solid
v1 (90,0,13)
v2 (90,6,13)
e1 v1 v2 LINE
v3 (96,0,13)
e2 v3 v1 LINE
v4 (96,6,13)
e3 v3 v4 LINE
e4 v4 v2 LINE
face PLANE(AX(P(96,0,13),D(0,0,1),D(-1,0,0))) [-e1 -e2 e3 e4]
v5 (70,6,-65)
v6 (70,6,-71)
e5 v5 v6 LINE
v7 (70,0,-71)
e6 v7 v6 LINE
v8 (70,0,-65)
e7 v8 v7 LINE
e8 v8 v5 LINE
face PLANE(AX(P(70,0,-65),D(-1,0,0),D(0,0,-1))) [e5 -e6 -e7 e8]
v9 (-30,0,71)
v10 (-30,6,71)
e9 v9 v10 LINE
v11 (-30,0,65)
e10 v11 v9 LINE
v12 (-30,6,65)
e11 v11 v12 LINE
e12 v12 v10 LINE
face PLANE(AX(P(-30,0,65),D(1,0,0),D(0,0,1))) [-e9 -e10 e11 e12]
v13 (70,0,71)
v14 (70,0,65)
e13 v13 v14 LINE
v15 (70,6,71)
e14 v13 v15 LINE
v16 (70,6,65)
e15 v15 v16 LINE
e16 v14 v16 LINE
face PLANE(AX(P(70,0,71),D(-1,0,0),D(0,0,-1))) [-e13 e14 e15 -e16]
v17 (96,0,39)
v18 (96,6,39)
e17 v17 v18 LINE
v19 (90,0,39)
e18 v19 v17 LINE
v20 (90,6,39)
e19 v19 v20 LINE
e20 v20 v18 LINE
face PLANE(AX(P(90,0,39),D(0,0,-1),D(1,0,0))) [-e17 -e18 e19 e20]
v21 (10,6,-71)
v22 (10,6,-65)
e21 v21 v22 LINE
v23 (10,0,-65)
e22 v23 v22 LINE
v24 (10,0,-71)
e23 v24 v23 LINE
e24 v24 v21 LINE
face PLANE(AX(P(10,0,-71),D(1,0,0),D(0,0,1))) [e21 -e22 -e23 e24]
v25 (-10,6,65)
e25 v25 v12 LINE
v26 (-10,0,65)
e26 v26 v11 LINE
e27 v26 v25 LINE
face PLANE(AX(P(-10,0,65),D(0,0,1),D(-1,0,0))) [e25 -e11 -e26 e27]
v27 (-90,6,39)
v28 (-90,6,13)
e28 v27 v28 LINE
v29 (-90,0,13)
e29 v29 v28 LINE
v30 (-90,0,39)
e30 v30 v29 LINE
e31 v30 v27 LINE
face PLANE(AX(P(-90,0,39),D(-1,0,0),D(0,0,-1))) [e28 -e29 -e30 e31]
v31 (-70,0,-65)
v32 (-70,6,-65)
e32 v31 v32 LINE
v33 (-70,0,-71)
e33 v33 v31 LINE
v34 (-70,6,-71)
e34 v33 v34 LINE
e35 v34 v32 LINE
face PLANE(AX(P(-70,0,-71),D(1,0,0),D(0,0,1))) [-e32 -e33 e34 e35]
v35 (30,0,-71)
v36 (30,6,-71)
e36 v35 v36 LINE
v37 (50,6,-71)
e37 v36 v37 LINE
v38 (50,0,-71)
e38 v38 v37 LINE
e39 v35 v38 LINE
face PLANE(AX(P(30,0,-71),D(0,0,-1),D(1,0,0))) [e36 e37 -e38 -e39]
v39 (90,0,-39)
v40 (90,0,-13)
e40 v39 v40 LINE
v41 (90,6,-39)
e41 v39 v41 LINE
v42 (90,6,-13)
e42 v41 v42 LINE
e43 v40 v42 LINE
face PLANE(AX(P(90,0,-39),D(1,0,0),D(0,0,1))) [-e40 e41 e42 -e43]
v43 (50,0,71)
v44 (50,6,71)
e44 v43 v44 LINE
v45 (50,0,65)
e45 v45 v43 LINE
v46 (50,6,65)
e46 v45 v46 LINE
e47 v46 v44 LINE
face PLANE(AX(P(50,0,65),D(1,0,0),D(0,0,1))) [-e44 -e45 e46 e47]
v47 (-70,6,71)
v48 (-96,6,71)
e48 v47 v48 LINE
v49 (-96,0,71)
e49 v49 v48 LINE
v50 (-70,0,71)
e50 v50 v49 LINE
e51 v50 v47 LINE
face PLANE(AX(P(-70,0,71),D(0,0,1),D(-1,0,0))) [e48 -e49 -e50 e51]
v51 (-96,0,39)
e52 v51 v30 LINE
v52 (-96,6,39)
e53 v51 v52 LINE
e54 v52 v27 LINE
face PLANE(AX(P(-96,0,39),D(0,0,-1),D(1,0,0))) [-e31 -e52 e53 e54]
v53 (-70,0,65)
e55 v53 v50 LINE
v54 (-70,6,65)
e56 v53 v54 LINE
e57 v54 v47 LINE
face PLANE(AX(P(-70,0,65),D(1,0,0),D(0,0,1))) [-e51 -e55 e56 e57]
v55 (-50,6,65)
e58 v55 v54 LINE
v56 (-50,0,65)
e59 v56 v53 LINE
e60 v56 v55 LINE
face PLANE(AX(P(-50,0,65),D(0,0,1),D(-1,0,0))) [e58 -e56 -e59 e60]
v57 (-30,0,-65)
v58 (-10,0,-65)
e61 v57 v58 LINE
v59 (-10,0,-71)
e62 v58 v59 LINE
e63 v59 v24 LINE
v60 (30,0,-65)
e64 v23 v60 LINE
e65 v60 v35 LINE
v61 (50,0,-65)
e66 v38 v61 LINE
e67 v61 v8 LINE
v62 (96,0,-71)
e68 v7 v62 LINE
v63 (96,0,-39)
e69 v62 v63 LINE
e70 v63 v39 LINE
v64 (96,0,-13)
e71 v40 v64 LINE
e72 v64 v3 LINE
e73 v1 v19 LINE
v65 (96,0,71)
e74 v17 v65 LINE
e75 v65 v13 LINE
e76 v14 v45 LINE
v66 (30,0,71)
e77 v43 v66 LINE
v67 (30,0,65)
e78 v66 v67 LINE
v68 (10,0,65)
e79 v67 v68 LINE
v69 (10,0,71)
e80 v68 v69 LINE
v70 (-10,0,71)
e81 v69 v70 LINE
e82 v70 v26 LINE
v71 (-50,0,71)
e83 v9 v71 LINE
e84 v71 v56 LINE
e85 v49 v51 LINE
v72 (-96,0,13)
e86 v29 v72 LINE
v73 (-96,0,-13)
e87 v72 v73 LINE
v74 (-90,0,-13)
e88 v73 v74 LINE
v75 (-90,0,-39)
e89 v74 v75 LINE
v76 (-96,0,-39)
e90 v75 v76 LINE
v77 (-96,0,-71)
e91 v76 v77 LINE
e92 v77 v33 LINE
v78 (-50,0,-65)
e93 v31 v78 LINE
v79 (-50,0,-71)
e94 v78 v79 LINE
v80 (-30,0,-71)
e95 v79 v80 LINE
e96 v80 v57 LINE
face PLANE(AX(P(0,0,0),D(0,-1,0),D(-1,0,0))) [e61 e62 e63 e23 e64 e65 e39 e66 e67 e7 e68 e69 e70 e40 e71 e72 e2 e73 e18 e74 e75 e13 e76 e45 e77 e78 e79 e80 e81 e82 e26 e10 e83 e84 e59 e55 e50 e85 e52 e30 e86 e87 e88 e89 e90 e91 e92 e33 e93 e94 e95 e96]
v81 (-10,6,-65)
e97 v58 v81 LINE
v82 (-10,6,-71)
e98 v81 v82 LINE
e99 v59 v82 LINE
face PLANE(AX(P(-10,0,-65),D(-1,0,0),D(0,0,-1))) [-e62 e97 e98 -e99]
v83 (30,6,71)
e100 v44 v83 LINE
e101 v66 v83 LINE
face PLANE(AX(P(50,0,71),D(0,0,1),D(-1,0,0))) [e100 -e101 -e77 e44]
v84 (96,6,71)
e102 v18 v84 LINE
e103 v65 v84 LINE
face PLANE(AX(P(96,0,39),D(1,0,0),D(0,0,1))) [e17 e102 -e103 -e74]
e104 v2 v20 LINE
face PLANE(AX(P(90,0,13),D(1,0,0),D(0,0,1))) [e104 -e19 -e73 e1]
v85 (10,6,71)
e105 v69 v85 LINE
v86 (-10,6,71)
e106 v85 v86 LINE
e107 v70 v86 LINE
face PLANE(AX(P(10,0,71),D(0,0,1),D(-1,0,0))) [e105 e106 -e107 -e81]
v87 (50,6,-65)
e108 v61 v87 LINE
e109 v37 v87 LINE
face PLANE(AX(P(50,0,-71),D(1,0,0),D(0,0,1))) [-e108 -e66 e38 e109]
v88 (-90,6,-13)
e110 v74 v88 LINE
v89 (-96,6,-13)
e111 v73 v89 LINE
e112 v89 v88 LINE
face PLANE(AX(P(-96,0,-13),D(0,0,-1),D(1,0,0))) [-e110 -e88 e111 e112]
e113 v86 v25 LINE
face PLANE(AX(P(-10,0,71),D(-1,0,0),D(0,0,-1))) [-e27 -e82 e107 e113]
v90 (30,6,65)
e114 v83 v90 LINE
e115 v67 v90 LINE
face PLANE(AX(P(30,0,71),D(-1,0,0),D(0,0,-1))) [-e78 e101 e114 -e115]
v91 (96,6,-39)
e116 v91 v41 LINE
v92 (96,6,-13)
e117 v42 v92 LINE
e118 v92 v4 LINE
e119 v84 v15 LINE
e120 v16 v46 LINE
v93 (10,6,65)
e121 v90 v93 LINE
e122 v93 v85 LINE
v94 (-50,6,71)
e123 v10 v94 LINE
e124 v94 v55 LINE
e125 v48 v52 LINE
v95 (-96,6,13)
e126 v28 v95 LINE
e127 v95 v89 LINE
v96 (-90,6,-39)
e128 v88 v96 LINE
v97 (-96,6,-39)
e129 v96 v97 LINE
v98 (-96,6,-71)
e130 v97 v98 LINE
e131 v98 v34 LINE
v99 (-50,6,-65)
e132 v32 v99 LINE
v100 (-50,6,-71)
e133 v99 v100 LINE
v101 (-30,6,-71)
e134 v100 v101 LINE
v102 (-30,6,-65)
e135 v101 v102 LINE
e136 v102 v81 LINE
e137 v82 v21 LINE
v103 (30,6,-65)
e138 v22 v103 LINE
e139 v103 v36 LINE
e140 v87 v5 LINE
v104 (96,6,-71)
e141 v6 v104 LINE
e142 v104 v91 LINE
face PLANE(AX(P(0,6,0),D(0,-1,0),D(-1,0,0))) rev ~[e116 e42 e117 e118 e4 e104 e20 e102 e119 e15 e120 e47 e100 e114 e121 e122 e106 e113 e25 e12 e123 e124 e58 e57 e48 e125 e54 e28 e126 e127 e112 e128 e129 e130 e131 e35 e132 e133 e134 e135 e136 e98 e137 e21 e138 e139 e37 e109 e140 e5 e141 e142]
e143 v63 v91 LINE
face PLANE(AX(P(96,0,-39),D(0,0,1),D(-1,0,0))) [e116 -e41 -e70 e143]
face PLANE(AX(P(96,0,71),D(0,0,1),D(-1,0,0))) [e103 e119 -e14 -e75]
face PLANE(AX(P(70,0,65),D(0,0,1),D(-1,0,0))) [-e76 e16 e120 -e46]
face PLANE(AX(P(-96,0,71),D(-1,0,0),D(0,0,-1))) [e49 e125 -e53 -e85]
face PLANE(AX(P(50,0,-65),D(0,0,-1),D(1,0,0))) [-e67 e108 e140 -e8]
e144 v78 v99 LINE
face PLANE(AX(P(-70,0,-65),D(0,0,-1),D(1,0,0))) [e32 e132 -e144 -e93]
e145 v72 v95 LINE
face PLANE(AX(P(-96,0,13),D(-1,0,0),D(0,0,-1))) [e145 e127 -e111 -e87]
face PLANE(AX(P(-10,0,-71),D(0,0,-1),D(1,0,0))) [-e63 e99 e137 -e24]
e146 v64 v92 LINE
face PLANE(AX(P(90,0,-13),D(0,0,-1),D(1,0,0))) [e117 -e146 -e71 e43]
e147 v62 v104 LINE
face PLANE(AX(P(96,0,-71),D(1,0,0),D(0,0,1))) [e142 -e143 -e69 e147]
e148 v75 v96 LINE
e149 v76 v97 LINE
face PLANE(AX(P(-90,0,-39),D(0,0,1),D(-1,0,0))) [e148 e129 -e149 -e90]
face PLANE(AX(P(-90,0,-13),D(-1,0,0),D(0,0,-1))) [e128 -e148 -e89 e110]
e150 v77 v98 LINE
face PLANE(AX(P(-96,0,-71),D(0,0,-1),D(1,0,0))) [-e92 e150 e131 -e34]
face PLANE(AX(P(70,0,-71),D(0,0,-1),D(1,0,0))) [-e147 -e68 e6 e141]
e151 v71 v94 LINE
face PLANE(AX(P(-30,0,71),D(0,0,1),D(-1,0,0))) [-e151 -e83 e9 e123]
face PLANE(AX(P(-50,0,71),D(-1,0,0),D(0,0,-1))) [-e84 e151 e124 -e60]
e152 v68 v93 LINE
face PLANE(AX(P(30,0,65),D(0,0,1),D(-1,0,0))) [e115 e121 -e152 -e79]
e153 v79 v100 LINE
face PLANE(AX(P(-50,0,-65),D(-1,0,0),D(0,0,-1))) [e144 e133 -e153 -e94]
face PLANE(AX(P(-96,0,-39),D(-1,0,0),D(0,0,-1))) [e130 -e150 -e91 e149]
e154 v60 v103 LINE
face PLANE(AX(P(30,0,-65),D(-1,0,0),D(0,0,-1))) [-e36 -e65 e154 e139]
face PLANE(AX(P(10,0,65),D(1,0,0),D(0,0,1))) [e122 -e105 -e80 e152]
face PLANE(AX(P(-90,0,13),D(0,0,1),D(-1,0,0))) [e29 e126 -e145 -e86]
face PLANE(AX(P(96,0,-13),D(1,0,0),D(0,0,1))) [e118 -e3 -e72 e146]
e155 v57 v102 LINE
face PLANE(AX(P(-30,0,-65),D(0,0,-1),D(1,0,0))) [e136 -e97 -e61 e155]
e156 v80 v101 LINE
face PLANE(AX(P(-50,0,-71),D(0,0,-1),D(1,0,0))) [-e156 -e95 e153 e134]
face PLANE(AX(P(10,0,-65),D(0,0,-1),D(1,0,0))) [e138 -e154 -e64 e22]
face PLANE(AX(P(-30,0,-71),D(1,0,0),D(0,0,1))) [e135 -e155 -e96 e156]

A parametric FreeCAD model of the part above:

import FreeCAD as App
import Part
import Sketcher
from FreeCAD import Vector
Q = App.Units.Quantity

doc = App.newDocument("Part")
params = doc.addObject("Spreadsheet::Sheet", "Params")
for row, (alias, value) in enumerate([
    ("sketch1_width", "26 mm"),
    ("sketch1_width2", "6 mm"),
    ("sketch1_width3", "20 mm"),
    ("sketch1_height", "32 mm"),
    ("pad1_length", "6 mm"),
], start=1):
    params.set(f"A{row}", alias)
    params.set(f"B{row}", "=" + value)
    params.setAlias(f"B{row}", alias)

body = doc.addObject("PartDesign::Body", "Body")

# Sketch on XZ plane
sketch1 = doc.addObject("Sketcher::SketchObject", "Sketch")
body.addObject(sketch1)
sketch1.AttachmentSupport = (doc.XZ_Plane, [""])
sketch1.MapMode = "FlatFace"
sketch1.addGeometry([
    Part.LineSegment(Vector(-70, -65, 0), Vector(-70, -71, 0)),  # 0
    Part.LineSegment(Vector(-70, -71, 0), Vector(-96, -71, 0)),  # 1
    Part.LineSegment(Vector(-96, -71, 0), Vector(-96, -39, 0)),  # 2
    Part.LineSegment(Vector(-96, -39, 0), Vector(-90, -39, 0)),  # 3
    Part.LineSegment(Vector(-90, -39, 0), Vector(-90, -13, 0)),  # 4
    Part.LineSegment(Vector(-90, -13, 0), Vector(-96, -13, 0)),  # 5
    Part.LineSegment(Vector(-96, -13, 0), Vector(-96, 13, 0)),  # 6
    Part.LineSegment(Vector(-96, 13, 0), Vector(-90, 13, 0)),  # 7
    Part.LineSegment(Vector(-90, 13, 0), Vector(-90, 39, 0)),  # 8
    Part.LineSegment(Vector(-90, 39, 0), Vector(-96, 39, 0)),  # 9
    Part.LineSegment(Vector(-96, 39, 0), Vector(-96, 71, 0)),  # 10
    Part.LineSegment(Vector(-96, 71, 0), Vector(-70, 71, 0)),  # 11
    Part.LineSegment(Vector(-70, 71, 0), Vector(-70, 65, 0)),  # 12
    Part.LineSegment(Vector(-70, 65, 0), Vector(-50, 65, 0)),  # 13
    Part.LineSegment(Vector(-50, 65, 0), Vector(-50, 71, 0)),  # 14
    Part.LineSegment(Vector(-50, 71, 0), Vector(-30, 71, 0)),  # 15
    Part.LineSegment(Vector(-30, 71, 0), Vector(-30, 65, 0)),  # 16
    Part.LineSegment(Vector(-30, 65, 0), Vector(-10, 65, 0)),  # 17
    Part.LineSegment(Vector(-10, 65, 0), Vector(-10, 71, 0)),  # 18
    Part.LineSegment(Vector(-10, 71, 0), Vector(10, 71, 0)),  # 19
    Part.LineSegment(Vector(10, 71, 0), Vector(10, 65, 0)),  # 20
    Part.LineSegment(Vector(10, 65, 0), Vector(30, 65, 0)),  # 21
    Part.LineSegment(Vector(30, 65, 0), Vector(30, 71, 0)),  # 22
    Part.LineSegment(Vector(30, 71, 0), Vector(50, 71, 0)),  # 23
    Part.LineSegment(Vector(50, 71, 0), Vector(50, 65, 0)),  # 24
    Part.LineSegment(Vector(50, 65, 0), Vector(70, 65, 0)),  # 25
    Part.LineSegment(Vector(70, 65, 0), Vector(70, 71, 0)),  # 26
    Part.LineSegment(Vector(70, 71, 0), Vector(96, 71, 0)),  # 27
    Part.LineSegment(Vector(96, 71, 0), Vector(96, 39, 0)),  # 28
    Part.LineSegment(Vector(96, 39, 0), Vector(90, 39, 0)),  # 29
    Part.LineSegment(Vector(90, 39, 0), Vector(90, 13, 0)),  # 30
    Part.LineSegment(Vector(90, 13, 0), Vector(96, 13, 0)),  # 31
    Part.LineSegment(Vector(96, 13, 0), Vector(96, -13, 0)),  # 32
    Part.LineSegment(Vector(96, -13, 0), Vector(90, -13, 0)),  # 33
    Part.LineSegment(Vector(90, -13, 0), Vector(90, -39, 0)),  # 34
    Part.LineSegment(Vector(90, -39, 0), Vector(96, -39, 0)),  # 35
    Part.LineSegment(Vector(96, -39, 0), Vector(96, -71, 0)),  # 36
    Part.LineSegment(Vector(96, -71, 0), Vector(70, -71, 0)),  # 37
    Part.LineSegment(Vector(70, -71, 0), Vector(70, -65, 0)),  # 38
    Part.LineSegment(Vector(70, -65, 0), Vector(50, -65, 0)),  # 39
    Part.LineSegment(Vector(50, -65, 0), Vector(50, -71, 0)),  # 40
    Part.LineSegment(Vector(50, -71, 0), Vector(30, -71, 0)),  # 41
    Part.LineSegment(Vector(30, -71, 0), Vector(30, -65, 0)),  # 42
    Part.LineSegment(Vector(30, -65, 0), Vector(10, -65, 0)),  # 43
    Part.LineSegment(Vector(10, -65, 0), Vector(10, -71, 0)),  # 44
    Part.LineSegment(Vector(10, -71, 0), Vector(-10, -71, 0)),  # 45
    Part.LineSegment(Vector(-10, -71, 0), Vector(-10, -65, 0)),  # 46
    Part.LineSegment(Vector(-10, -65, 0), Vector(-30, -65, 0)),  # 47
    Part.LineSegment(Vector(-30, -65, 0), Vector(-30, -71, 0)),  # 48
    Part.LineSegment(Vector(-30, -71, 0), Vector(-50, -71, 0)),  # 49
    Part.LineSegment(Vector(-50, -71, 0), Vector(-50, -65, 0)),  # 50
    Part.LineSegment(Vector(-50, -65, 0), Vector(-70, -65, 0)),  # 51
], False)
sketch1.addConstraint([
    Sketcher.Constraint("Coincident", 0, 2, 1, 1),
    Sketcher.Constraint("Coincident", 1, 2, 2, 1),
    Sketcher.Constraint("Coincident", 2, 2, 3, 1),
    Sketcher.Constraint("Coincident", 3, 2, 4, 1),
    Sketcher.Constraint("Coincident", 4, 2, 5, 1),
    Sketcher.Constraint("Coincident", 5, 2, 6, 1),
    Sketcher.Constraint("Coincident", 6, 2, 7, 1),
    Sketcher.Constraint("Coincident", 7, 2, 8, 1),
    Sketcher.Constraint("Coincident", 8, 2, 9, 1),
    Sketcher.Constraint("Coincident", 9, 2, 10, 1),
    Sketcher.Constraint("Coincident", 10, 2, 11, 1),
    Sketcher.Constraint("Coincident", 11, 2, 12, 1),
    Sketcher.Constraint("Coincident", 12, 2, 13, 1),
    Sketcher.Constraint("Coincident", 13, 2, 14, 1),
    Sketcher.Constraint("Coincident", 14, 2, 15, 1),
    Sketcher.Constraint("Coincident", 15, 2, 16, 1),
    Sketcher.Constraint("Coincident", 16, 2, 17, 1),
    Sketcher.Constraint("Coincident", 17, 2, 18, 1),
    Sketcher.Constraint("Coincident", 18, 2, 19, 1),
    Sketcher.Constraint("Coincident", 19, 2, 20, 1),
    Sketcher.Constraint("Coincident", 20, 2, 21, 1),
    Sketcher.Constraint("Coincident", 21, 2, 22, 1),
    Sketcher.Constraint("Coincident", 22, 2, 23, 1),
    Sketcher.Constraint("Coincident", 23, 2, 24, 1),
    Sketcher.Constraint("Coincident", 24, 2, 25, 1),
    Sketcher.Constraint("Coincident", 25, 2, 26, 1),
    Sketcher.Constraint("Coincident", 26, 2, 27, 1),
    Sketcher.Constraint("Coincident", 27, 2, 28, 1),
    Sketcher.Constraint("Coincident", 28, 2, 29, 1),
    Sketcher.Constraint("Coincident", 29, 2, 30, 1),
    Sketcher.Constraint("Coincident", 30, 2, 31, 1),
    Sketcher.Constraint("Coincident", 31, 2, 32, 1),
    Sketcher.Constraint("Coincident", 32, 2, 33, 1),
    Sketcher.Constraint("Coincident", 33, 2, 34, 1),
    Sketcher.Constraint("Coincident", 34, 2, 35, 1),
    Sketcher.Constraint("Coincident", 35, 2, 36, 1),
    Sketcher.Constraint("Coincident", 36, 2, 37, 1),
    Sketcher.Constraint("Coincident", 37, 2, 38, 1),
    Sketcher.Constraint("Coincident", 38, 2, 39, 1),
    Sketcher.Constraint("Coincident", 39, 2, 40, 1),
    Sketcher.Constraint("Coincident", 40, 2, 41, 1),
    Sketcher.Constraint("Coincident", 41, 2, 42, 1),
    Sketcher.Constraint("Coincident", 42, 2, 43, 1),
    Sketcher.Constraint("Coincident", 43, 2, 44, 1),
    Sketcher.Constraint("Coincident", 44, 2, 45, 1),
    Sketcher.Constraint("Coincident", 45, 2, 46, 1),
    Sketcher.Constraint("Coincident", 46, 2, 47, 1),
    Sketcher.Constraint("Coincident", 47, 2, 48, 1),
    Sketcher.Constraint("Coincident", 48, 2, 49, 1),
    Sketcher.Constraint("Coincident", 49, 2, 50, 1),
    Sketcher.Constraint("Coincident", 50, 2, 51, 1),
    Sketcher.Constraint("Coincident", 51, 2, 0, 1),
    Sketcher.Constraint("Vertical", 0),
    Sketcher.Constraint("Horizontal", 1),
    Sketcher.Constraint("Vertical", 2),
    Sketcher.Constraint("Horizontal", 3),
    Sketcher.Constraint("Vertical", 4),
    Sketcher.Constraint("Horizontal", 5),
    Sketcher.Constraint("Vertical", 6),
    Sketcher.Constraint("Horizontal", 7),
    Sketcher.Constraint("Vertical", 8),
    Sketcher.Constraint("Horizontal", 9),
    Sketcher.Constraint("Vertical", 10),
    Sketcher.Constraint("Horizontal", 11),
    Sketcher.Constraint("Vertical", 12),
    Sketcher.Constraint("Horizontal", 13),
    Sketcher.Constraint("Vertical", 14),
    Sketcher.Constraint("Horizontal", 15),
    Sketcher.Constraint("Vertical", 16),
    Sketcher.Constraint("Horizontal", 17),
    Sketcher.Constraint("Vertical", 18),
    Sketcher.Constraint("Horizontal", 19),
    Sketcher.Constraint("Vertical", 20),
    Sketcher.Constraint("Horizontal", 21),
    Sketcher.Constraint("Vertical", 22),
    Sketcher.Constraint("Horizontal", 23),
    Sketcher.Constraint("Vertical", 24),
    Sketcher.Constraint("Horizontal", 25),
    Sketcher.Constraint("Vertical", 26),
    Sketcher.Constraint("Horizontal", 27),
    Sketcher.Constraint("Vertical", 28),
    Sketcher.Constraint("Horizontal", 29),
    Sketcher.Constraint("Vertical", 30),
    Sketcher.Constraint("Horizontal", 31),
    Sketcher.Constraint("Vertical", 32),
    Sketcher.Constraint("Horizontal", 33),
    Sketcher.Constraint("Vertical", 34),
    Sketcher.Constraint("Horizontal", 35),
    Sketcher.Constraint("Vertical", 36),
    Sketcher.Constraint("Horizontal", 37),
    Sketcher.Constraint("Vertical", 38),
    Sketcher.Constraint("Horizontal", 39),
    Sketcher.Constraint("Vertical", 40),
    Sketcher.Constraint("Horizontal", 41),
    Sketcher.Constraint("Vertical", 42),
    Sketcher.Constraint("Horizontal", 43),
    Sketcher.Constraint("Vertical", 44),
    Sketcher.Constraint("Horizontal", 45),
    Sketcher.Constraint("Vertical", 46),
    Sketcher.Constraint("Horizontal", 47),
    Sketcher.Constraint("Vertical", 48),
    Sketcher.Constraint("Horizontal", 49),
    Sketcher.Constraint("Vertical", 50),
    Sketcher.Constraint("Horizontal", 51),
    Sketcher.Constraint("Symmetric", 0, 2, 26, 2, -1, 1),
    Sketcher.Constraint("Symmetric", 2, 2, 28, 2, -1, 1),
    Sketcher.Constraint("Symmetric", 4, 2, 30, 2, -1, 1),
    Sketcher.Constraint("Symmetric", 6, 2, 32, 2, -1, 1),
    Sketcher.Constraint("Symmetric", 8, 2, 34, 2, -1, 1),
    Sketcher.Constraint("Symmetric", 10, 2, 36, 2, -1, 1),
    Sketcher.Constraint("Symmetric", 12, 2, 38, 2, -1, 1),
    Sketcher.Constraint("Symmetric", 14, 2, 40, 2, -1, 1),
    Sketcher.Constraint("Symmetric", 16, 2, 42, 2, -1, 1),
    Sketcher.Constraint("Symmetric", 18, 2, 44, 2, -1, 1),
    Sketcher.Constraint("Symmetric", 20, 2, 46, 2, -1, 1),
    Sketcher.Constraint("Symmetric", 22, 2, 48, 2, -1, 1),
    Sketcher.Constraint("Symmetric", 24, 2, 50, 2, -1, 1),
    Sketcher.Constraint("Symmetric", 17, 2, 20, 2, -2),
    Sketcher.Constraint("Symmetric", 15, 2, 22, 2, -2),
    Sketcher.Constraint("Symmetric", 13, 2, 24, 2, -2),
    Sketcher.Constraint("Symmetric", 11, 2, 26, 2, -2),
    Sketcher.Constraint("Symmetric", 9, 2, 28, 2, -2),
    Sketcher.Constraint("Symmetric", 7, 2, 30, 2, -2),
    Sketcher.Constraint("Horizontal", 11, 2, 14, 2),
    Sketcher.Constraint("Horizontal", 13, 2, 16, 2),
    Sketcher.Constraint("Horizontal", 15, 2, 18, 2),
    Sketcher.Constraint("Vertical", 2, 2, 5, 2),
    Sketcher.Constraint("Equal", 13, 15),
    Sketcher.Constraint("Equal", 15, 17),
    Sketcher.Constraint("Equal", 17, 19),
    Sketcher.Constraint("Equal", 35, 0),
    Sketcher.Constraint("Equal", 37, 4),
    Sketcher.Constraint("Equal", 4, 6),
    Sketcher.Constraint("DistanceX", 1, 2, 1, 1, Q("26 mm")),
    Sketcher.Constraint("DistanceX", 3, 1, 3, 2, Q("6 mm")),
    Sketcher.Constraint("DistanceX", 13, 1, 13, 2, Q("20 mm")),
    Sketcher.Constraint("DistanceY", 2, 1, 2, 2, Q("32 mm")),
])
sketch1.setExpression("Constraints[133]", "Params.sketch1_width")
sketch1.setExpression("Constraints[134]", "Params.sketch1_width2")
sketch1.setExpression("Constraints[135]", "Params.sketch1_width3")
sketch1.setExpression("Constraints[136]", "Params.sketch1_height")
pad1 = doc.addObject("PartDesign::Pad", "Pad")
body.addObject(pad1)
pad1.Profile = sketch1
pad1.setExpression("Length", "Params.pad1_length")
pad1.Reversed = True

doc.recompute()
